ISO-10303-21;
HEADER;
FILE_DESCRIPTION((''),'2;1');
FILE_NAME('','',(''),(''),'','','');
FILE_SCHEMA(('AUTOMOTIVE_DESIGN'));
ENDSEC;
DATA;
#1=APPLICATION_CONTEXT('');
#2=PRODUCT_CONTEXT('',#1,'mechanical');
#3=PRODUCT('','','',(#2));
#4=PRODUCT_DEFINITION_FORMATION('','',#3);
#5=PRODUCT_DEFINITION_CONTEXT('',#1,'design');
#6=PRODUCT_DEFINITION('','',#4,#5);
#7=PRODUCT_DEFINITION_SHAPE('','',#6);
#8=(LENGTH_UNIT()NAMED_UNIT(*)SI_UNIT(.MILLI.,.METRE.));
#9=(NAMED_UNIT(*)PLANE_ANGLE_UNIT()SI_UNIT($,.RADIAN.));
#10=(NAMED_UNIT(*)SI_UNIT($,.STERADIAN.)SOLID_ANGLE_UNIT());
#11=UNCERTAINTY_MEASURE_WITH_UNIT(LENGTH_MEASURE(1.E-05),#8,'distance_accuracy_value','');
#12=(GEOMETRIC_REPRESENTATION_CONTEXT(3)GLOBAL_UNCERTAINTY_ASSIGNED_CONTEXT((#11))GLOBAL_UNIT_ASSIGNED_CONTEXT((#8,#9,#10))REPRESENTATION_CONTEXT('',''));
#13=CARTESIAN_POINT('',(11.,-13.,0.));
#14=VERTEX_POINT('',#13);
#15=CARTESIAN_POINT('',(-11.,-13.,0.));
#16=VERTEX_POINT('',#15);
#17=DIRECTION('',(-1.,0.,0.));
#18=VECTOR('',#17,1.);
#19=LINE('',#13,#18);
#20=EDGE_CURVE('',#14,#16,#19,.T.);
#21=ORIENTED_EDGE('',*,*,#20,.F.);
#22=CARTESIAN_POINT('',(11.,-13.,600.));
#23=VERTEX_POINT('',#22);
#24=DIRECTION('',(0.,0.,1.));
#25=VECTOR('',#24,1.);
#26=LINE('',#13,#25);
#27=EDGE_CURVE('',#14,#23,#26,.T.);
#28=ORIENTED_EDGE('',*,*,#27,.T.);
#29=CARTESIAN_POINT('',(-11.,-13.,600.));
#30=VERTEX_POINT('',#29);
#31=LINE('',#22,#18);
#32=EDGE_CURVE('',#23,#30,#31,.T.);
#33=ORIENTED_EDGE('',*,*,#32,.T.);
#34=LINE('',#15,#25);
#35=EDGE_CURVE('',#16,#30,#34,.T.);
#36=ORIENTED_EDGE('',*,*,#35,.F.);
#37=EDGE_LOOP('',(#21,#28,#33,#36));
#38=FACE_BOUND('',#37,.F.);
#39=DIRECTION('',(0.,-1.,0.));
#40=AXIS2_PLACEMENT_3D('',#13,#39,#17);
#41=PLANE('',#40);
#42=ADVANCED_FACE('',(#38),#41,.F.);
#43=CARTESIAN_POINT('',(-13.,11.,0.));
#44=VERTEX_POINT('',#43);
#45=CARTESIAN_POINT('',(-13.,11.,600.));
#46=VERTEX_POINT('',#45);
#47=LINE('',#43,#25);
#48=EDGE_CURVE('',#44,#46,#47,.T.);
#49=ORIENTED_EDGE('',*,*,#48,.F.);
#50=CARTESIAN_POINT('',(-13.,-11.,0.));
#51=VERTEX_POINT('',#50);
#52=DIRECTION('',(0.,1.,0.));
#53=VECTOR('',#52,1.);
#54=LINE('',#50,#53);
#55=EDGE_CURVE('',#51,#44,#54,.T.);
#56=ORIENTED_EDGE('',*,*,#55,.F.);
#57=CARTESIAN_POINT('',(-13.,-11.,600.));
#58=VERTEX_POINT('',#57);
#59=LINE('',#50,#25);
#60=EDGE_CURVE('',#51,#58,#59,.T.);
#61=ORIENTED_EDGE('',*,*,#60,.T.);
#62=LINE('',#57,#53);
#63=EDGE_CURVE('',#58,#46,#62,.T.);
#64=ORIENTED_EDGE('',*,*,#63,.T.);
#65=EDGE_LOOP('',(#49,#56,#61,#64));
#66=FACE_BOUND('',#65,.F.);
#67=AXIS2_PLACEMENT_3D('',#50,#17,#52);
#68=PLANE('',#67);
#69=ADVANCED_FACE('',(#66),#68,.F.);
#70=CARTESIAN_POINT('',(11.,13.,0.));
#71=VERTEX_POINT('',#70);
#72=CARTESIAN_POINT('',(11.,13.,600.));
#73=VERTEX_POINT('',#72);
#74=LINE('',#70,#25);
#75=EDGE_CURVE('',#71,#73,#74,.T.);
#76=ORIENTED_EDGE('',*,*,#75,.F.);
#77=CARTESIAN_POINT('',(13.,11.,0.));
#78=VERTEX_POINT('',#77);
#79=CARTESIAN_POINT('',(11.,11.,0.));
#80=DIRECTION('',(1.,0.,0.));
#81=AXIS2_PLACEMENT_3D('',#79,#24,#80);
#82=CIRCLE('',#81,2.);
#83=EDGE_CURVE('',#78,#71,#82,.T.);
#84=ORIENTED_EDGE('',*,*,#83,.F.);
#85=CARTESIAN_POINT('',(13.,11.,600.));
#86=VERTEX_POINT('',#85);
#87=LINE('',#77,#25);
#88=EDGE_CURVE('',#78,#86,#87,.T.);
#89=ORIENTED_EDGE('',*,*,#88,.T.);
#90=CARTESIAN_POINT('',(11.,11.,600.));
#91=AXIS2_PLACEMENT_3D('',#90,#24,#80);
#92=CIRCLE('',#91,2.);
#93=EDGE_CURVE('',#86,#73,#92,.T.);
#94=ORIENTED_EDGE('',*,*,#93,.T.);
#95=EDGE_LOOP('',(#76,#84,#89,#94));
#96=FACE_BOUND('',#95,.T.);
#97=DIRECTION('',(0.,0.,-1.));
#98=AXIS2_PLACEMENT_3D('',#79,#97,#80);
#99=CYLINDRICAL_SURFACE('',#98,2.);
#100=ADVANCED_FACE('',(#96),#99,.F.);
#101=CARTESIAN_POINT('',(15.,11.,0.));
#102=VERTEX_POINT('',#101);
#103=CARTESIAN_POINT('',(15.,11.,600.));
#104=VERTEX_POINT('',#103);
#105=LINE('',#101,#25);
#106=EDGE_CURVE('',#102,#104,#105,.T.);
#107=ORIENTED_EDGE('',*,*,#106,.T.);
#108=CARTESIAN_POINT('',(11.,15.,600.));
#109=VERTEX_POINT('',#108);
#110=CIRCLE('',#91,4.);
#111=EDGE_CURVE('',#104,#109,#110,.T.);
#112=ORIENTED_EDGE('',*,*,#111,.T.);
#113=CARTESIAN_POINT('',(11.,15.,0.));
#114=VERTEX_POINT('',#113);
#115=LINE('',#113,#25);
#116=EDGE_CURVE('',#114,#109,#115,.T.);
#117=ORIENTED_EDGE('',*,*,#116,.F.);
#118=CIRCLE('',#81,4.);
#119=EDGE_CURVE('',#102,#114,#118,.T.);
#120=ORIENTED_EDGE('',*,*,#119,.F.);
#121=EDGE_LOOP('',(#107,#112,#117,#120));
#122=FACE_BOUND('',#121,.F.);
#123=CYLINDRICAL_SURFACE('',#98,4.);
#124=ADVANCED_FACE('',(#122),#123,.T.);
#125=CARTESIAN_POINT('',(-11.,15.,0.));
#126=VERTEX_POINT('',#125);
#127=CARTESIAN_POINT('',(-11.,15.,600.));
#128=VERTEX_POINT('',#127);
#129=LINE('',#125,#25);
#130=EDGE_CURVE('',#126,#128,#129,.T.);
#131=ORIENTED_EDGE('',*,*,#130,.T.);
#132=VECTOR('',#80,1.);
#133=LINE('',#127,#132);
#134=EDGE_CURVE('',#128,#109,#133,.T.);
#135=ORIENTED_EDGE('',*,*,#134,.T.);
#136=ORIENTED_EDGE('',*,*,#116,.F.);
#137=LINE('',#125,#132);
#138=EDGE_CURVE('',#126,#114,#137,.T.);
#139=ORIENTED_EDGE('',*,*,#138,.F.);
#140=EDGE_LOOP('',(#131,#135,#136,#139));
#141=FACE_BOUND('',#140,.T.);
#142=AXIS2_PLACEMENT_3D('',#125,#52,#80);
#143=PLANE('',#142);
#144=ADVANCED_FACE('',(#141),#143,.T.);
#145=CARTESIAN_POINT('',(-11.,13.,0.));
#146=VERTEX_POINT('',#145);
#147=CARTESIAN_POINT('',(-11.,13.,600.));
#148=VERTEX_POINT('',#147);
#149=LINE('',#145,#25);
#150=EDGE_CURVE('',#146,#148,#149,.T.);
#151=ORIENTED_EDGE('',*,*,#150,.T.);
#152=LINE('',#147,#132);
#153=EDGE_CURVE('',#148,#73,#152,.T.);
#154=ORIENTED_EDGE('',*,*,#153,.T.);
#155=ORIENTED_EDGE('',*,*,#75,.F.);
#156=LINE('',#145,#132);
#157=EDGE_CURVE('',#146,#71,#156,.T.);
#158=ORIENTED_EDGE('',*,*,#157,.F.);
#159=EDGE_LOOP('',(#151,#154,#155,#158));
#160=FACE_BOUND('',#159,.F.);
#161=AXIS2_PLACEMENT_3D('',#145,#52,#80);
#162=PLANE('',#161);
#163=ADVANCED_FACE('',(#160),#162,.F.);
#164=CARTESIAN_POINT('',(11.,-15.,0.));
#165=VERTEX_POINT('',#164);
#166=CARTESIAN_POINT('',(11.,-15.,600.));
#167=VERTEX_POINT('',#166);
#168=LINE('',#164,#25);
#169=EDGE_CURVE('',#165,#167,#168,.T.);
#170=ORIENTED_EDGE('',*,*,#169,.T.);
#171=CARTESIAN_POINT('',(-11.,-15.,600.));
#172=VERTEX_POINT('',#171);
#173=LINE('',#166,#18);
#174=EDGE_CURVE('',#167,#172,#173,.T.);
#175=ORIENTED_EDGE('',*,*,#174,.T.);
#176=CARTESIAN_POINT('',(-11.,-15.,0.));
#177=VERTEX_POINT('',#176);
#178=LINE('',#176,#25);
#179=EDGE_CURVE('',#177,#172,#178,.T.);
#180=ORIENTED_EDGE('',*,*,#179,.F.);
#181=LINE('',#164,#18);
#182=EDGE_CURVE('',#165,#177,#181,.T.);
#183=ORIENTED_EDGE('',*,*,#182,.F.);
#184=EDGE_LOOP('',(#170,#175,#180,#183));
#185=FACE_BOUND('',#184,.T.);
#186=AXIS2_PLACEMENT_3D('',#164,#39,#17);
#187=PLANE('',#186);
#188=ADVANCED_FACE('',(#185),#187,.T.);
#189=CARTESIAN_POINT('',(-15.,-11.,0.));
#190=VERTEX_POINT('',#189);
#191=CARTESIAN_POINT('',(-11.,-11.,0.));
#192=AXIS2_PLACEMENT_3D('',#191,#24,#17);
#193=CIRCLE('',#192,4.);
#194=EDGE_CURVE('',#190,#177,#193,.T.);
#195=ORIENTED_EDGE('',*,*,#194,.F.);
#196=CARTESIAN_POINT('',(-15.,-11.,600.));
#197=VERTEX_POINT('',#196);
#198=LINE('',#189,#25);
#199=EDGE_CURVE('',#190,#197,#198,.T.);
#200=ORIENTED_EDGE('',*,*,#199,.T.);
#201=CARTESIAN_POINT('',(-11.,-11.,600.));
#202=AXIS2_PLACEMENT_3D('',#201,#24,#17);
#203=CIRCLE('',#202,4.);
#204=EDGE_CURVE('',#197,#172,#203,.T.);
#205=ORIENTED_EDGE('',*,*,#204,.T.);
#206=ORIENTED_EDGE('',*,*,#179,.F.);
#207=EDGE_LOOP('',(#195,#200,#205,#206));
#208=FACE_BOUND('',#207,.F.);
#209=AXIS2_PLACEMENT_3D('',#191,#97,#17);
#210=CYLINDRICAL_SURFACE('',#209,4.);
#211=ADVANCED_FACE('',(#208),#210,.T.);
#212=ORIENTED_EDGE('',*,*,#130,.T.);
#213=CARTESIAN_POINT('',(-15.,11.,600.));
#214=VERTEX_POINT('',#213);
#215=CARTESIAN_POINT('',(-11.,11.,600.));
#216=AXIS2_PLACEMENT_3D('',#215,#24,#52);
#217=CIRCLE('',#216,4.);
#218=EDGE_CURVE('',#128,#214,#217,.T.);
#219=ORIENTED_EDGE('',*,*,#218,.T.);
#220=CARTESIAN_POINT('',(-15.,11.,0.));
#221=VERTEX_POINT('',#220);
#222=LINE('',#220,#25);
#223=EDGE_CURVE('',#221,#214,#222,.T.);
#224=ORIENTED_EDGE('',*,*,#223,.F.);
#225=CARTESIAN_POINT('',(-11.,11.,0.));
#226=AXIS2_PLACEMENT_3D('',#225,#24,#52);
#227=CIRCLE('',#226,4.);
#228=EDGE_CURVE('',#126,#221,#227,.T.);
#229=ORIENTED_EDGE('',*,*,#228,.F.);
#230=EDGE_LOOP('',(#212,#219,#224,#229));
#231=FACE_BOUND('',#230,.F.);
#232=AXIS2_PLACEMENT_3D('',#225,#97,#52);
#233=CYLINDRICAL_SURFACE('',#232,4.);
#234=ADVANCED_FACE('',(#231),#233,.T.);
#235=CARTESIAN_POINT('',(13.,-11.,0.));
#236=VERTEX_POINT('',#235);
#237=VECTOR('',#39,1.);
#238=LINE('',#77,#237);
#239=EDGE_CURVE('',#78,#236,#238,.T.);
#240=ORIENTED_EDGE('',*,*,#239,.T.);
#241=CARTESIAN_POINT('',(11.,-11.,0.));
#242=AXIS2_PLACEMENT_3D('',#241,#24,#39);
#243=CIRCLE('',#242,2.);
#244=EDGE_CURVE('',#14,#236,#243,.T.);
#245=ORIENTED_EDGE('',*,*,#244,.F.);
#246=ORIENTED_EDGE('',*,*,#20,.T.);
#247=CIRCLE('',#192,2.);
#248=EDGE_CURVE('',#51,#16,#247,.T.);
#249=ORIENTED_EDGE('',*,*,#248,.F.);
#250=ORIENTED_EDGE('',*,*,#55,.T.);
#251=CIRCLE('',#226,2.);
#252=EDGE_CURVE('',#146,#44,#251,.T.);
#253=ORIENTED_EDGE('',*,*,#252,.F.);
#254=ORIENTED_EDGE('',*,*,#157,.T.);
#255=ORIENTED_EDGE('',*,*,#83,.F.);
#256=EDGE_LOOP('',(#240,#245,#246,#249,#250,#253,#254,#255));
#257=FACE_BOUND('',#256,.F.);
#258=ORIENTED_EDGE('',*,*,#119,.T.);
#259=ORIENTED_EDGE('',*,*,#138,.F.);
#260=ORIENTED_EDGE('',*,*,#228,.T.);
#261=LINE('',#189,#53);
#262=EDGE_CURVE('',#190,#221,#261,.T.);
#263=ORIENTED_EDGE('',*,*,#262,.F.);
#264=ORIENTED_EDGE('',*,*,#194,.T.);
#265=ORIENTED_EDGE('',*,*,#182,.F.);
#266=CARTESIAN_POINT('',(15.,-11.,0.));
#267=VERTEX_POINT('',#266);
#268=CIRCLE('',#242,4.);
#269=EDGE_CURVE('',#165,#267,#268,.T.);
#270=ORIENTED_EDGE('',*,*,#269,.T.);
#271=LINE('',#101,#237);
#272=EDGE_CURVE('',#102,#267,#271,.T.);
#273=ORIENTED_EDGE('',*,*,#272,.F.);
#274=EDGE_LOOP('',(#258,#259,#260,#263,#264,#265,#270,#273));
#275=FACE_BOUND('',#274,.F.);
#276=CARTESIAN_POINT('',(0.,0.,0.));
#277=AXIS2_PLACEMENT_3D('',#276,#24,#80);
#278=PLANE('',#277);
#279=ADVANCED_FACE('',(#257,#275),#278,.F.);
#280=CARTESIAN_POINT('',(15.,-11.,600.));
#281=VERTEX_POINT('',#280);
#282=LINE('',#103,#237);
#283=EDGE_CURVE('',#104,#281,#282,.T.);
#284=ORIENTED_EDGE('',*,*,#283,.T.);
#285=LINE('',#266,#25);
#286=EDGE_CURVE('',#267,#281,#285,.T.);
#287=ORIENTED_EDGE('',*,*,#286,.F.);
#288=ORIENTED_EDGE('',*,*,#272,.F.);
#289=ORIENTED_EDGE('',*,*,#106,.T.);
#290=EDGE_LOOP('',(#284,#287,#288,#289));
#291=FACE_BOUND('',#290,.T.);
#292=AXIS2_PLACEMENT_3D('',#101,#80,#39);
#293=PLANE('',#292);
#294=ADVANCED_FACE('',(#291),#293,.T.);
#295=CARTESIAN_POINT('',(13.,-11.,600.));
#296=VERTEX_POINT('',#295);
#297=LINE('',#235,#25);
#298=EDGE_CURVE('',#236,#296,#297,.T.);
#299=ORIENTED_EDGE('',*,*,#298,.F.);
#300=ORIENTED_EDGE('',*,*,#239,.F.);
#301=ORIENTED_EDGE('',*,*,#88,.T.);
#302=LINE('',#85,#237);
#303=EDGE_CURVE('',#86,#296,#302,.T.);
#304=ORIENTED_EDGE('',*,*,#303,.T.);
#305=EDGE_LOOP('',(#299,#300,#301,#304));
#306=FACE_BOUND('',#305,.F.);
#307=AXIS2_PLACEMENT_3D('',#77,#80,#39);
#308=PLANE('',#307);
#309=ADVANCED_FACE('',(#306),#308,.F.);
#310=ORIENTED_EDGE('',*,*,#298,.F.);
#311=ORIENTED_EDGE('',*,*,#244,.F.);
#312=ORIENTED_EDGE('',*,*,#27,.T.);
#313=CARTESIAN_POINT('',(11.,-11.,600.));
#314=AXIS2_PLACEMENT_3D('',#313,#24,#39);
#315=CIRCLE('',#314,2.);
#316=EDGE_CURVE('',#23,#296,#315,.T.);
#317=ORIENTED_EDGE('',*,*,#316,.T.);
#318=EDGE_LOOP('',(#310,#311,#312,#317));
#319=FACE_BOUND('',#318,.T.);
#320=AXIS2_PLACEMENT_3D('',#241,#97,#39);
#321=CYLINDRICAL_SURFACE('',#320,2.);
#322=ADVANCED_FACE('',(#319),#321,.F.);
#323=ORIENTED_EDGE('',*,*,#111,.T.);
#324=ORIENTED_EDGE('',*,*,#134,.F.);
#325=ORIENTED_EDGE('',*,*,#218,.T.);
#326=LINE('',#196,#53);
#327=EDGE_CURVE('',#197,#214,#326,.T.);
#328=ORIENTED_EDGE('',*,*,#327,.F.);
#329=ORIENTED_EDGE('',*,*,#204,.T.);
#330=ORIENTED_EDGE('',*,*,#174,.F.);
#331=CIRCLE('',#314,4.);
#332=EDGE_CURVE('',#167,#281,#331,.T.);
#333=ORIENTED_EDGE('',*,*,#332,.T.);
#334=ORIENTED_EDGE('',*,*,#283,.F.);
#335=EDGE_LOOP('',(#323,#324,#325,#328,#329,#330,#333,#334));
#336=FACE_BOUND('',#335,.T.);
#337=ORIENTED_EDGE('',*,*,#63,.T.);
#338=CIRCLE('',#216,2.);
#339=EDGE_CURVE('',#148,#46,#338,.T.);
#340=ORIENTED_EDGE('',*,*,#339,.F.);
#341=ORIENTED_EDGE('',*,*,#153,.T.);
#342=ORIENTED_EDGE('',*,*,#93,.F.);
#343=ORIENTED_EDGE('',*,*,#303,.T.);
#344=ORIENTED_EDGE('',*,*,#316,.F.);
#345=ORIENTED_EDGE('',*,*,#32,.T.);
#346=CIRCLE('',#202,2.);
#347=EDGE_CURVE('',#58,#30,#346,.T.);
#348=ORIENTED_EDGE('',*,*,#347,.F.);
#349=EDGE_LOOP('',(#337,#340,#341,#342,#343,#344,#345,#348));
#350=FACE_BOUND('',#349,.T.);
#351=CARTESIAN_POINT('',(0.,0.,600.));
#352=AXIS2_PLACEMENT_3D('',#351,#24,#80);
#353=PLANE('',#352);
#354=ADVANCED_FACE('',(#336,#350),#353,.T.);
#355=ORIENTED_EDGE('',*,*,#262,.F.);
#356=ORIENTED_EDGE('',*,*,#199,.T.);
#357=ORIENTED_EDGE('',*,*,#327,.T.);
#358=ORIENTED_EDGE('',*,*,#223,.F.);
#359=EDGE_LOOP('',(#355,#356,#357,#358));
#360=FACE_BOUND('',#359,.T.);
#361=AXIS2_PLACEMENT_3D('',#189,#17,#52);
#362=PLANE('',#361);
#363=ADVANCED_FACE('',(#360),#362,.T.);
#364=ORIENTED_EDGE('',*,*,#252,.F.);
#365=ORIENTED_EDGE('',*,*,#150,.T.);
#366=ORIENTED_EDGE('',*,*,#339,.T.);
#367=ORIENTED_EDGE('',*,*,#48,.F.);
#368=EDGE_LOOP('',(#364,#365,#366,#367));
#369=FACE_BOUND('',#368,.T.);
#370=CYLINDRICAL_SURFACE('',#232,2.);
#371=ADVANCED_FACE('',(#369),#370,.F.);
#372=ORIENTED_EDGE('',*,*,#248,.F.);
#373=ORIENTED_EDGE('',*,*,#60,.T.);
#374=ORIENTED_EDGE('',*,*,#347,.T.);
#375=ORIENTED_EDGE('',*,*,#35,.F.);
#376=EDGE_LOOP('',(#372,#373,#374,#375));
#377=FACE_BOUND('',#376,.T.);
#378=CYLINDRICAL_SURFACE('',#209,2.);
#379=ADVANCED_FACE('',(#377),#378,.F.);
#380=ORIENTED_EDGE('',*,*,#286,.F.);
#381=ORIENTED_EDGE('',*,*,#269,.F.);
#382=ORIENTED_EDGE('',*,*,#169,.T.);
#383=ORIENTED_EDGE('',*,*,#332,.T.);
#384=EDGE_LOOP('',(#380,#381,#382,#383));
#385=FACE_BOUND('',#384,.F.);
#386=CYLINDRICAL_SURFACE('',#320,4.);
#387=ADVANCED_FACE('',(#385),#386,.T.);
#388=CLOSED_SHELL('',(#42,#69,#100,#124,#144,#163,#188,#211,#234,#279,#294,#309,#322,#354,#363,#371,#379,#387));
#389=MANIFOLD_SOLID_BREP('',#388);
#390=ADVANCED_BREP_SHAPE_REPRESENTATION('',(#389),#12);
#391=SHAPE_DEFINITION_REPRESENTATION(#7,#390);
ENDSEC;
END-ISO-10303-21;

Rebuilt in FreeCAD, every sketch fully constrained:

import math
import FreeCAD as App
import Part
import Sketcher

V = App.Vector

doc = App.newDocument("Part")
params = doc.addObject("Spreadsheet::Sheet", "Params")
for row, (alias, value) in enumerate([
    ("sketch1_radius", "4 mm"),
    ("sketch1_radius2", "2 mm"),
    ("pad1_length", "600 mm"),
], start=1):
    params.set(f"A{row}", alias)
    params.set(f"B{row}", "=" + value)
    params.setAlias(f"B{row}", alias)

body = doc.addObject("PartDesign::Body", "Body")

sketch1 = body.newObject("Sketcher::SketchObject", "Sketch")
sketch1.AttachmentSupport = (doc.getObject("XY_Plane"), [""])
sketch1.MapMode = "FlatFace"
sketch1.addGeometry(Part.LineSegment(V(-15, 11, 0), V(-15, -11, 0)), False)
sketch1.addGeometry(Part.ArcOfCircle(Part.Circle(V(-11, -11, 0), V(0, 0, 1), 4), math.radians(180), math.radians(270)), False)
sketch1.addGeometry(Part.LineSegment(V(-11, -15, 0), V(11, -15, 0)), False)
sketch1.addGeometry(Part.ArcOfCircle(Part.Circle(V(11, -11, 0), V(0, 0, 1), 4), math.radians(-90), math.radians(0)), False)
sketch1.addGeometry(Part.LineSegment(V(15, -11, 0), V(15, 11, 0)), False)
sketch1.addGeometry(Part.ArcOfCircle(Part.Circle(V(11, 11, 0), V(0, 0, 1), 4), math.radians(0), math.radians(90)), False)
sketch1.addGeometry(Part.LineSegment(V(11, 15, 0), V(-11, 15, 0)), False)
sketch1.addGeometry(Part.ArcOfCircle(Part.Circle(V(-11, 11, 0), V(0, 0, 1), 4), math.radians(90), math.radians(180)), False)
sketch1.addGeometry(Part.ArcOfCircle(Part.Circle(V(-11, 11, 0), V(0, 0, 1), 2), math.radians(90), math.radians(180)), False)
sketch1.addGeometry(Part.LineSegment(V(-11, 13, 0), V(11, 13, 0)), False)
sketch1.addGeometry(Part.ArcOfCircle(Part.Circle(V(11, 11, 0), V(0, 0, 1), 2), math.radians(0), math.radians(90)), False)
sketch1.addGeometry(Part.LineSegment(V(13, 11, 0), V(13, -11, 0)), False)
sketch1.addGeometry(Part.ArcOfCircle(Part.Circle(V(11, -11, 0), V(0, 0, 1), 2), math.radians(-90), math.radians(0)), False)
sketch1.addGeometry(Part.LineSegment(V(11, -13, 0), V(-11, -13, 0)), False)
sketch1.addGeometry(Part.ArcOfCircle(Part.Circle(V(-11, -11, 0), V(0, 0, 1), 2), math.radians(180), math.radians(270)), False)
sketch1.addGeometry(Part.LineSegment(V(-13, -11, 0), V(-13, 11, 0)), False)
sketch1.addConstraint(Sketcher.Constraint("Tangent", 0, 2, 1, 1))
sketch1.addConstraint(Sketcher.Constraint("Tangent", 1, 2, 2, 1))
sketch1.addConstraint(Sketcher.Constraint("Tangent", 2, 2, 3, 1))
sketch1.addConstraint(Sketcher.Constraint("Tangent", 3, 2, 4, 1))
sketch1.addConstraint(Sketcher.Constraint("Tangent", 4, 2, 5, 1))
sketch1.addConstraint(Sketcher.Constraint("Tangent", 5, 2, 6, 1))
sketch1.addConstraint(Sketcher.Constraint("Tangent", 6, 2, 7, 1))
sketch1.addConstraint(Sketcher.Constraint("Tangent", 7, 2, 0, 1))
sketch1.addConstraint(Sketcher.Constraint("Tangent", 8, 1, 9, 1))
sketch1.addConstraint(Sketcher.Constraint("Tangent", 9, 2, 10, 2))
sketch1.addConstraint(Sketcher.Constraint("Tangent", 10, 1, 11, 1))
sketch1.addConstraint(Sketcher.Constraint("Tangent", 11, 2, 12, 2))
sketch1.addConstraint(Sketcher.Constraint("Tangent", 12, 1, 13, 1))
sketch1.addConstraint(Sketcher.Constraint("Tangent", 13, 2, 14, 2))
sketch1.addConstraint(Sketcher.Constraint("Tangent", 14, 1, 15, 1))
sketch1.addConstraint(Sketcher.Constraint("Tangent", 15, 2, 8, 2))
sketch1.addConstraint(Sketcher.Constraint("Vertical", 0))
sketch1.addConstraint(Sketcher.Constraint("Horizontal", 2))
sketch1.addConstraint(Sketcher.Constraint("Vertical", 4))
sketch1.addConstraint(Sketcher.Constraint("Horizontal", 6))
sketch1.addConstraint(Sketcher.Constraint("Horizontal", 9))
sketch1.addConstraint(Sketcher.Constraint("Vertical", 11))
sketch1.addConstraint(Sketcher.Constraint("Horizontal", 13))
sketch1.addConstraint(Sketcher.Constraint("Vertical", 15))
sketch1.addConstraint(Sketcher.Constraint("Coincident", 8, 3, 7, 3))
sketch1.addConstraint(Sketcher.Constraint("Coincident", 10, 3, 5, 3))
sketch1.addConstraint(Sketcher.Constraint("Coincident", 12, 3, 3, 3))
sketch1.addConstraint(Sketcher.Constraint("Equal", 1, 3))
sketch1.addConstraint(Sketcher.Constraint("Equal", 3, 5))
sketch1.addConstraint(Sketcher.Constraint("Equal", 5, 7))
sketch1.addConstraint(Sketcher.Constraint("Equal", 12, 14))
sketch1.addConstraint(Sketcher.Constraint("Symmetric", 1, 3, 5, 3, -1, 1))
sketch1.addConstraint(Sketcher.Constraint("Equal", 13, 0))
sketch1.addConstraint(Sketcher.Constraint("Radius", 1, 4.0))
sketch1.addConstraint(Sketcher.Constraint("Radius", 8, 2.0))
sketch1.addConstraint(Sketcher.Constraint("DistanceX", 0, 2, -1, 1, 15.0))
sketch1.setExpression("Constraints[33]", "Params.sketch1_radius")
sketch1.setExpression("Constraints[34]", "Params.sketch1_radius2")
pad1 = body.newObject("PartDesign::Pad", "Pad")
pad1.Profile = sketch1
pad1.setExpression("Length", "Params.pad1_length")

doc.recompute()
